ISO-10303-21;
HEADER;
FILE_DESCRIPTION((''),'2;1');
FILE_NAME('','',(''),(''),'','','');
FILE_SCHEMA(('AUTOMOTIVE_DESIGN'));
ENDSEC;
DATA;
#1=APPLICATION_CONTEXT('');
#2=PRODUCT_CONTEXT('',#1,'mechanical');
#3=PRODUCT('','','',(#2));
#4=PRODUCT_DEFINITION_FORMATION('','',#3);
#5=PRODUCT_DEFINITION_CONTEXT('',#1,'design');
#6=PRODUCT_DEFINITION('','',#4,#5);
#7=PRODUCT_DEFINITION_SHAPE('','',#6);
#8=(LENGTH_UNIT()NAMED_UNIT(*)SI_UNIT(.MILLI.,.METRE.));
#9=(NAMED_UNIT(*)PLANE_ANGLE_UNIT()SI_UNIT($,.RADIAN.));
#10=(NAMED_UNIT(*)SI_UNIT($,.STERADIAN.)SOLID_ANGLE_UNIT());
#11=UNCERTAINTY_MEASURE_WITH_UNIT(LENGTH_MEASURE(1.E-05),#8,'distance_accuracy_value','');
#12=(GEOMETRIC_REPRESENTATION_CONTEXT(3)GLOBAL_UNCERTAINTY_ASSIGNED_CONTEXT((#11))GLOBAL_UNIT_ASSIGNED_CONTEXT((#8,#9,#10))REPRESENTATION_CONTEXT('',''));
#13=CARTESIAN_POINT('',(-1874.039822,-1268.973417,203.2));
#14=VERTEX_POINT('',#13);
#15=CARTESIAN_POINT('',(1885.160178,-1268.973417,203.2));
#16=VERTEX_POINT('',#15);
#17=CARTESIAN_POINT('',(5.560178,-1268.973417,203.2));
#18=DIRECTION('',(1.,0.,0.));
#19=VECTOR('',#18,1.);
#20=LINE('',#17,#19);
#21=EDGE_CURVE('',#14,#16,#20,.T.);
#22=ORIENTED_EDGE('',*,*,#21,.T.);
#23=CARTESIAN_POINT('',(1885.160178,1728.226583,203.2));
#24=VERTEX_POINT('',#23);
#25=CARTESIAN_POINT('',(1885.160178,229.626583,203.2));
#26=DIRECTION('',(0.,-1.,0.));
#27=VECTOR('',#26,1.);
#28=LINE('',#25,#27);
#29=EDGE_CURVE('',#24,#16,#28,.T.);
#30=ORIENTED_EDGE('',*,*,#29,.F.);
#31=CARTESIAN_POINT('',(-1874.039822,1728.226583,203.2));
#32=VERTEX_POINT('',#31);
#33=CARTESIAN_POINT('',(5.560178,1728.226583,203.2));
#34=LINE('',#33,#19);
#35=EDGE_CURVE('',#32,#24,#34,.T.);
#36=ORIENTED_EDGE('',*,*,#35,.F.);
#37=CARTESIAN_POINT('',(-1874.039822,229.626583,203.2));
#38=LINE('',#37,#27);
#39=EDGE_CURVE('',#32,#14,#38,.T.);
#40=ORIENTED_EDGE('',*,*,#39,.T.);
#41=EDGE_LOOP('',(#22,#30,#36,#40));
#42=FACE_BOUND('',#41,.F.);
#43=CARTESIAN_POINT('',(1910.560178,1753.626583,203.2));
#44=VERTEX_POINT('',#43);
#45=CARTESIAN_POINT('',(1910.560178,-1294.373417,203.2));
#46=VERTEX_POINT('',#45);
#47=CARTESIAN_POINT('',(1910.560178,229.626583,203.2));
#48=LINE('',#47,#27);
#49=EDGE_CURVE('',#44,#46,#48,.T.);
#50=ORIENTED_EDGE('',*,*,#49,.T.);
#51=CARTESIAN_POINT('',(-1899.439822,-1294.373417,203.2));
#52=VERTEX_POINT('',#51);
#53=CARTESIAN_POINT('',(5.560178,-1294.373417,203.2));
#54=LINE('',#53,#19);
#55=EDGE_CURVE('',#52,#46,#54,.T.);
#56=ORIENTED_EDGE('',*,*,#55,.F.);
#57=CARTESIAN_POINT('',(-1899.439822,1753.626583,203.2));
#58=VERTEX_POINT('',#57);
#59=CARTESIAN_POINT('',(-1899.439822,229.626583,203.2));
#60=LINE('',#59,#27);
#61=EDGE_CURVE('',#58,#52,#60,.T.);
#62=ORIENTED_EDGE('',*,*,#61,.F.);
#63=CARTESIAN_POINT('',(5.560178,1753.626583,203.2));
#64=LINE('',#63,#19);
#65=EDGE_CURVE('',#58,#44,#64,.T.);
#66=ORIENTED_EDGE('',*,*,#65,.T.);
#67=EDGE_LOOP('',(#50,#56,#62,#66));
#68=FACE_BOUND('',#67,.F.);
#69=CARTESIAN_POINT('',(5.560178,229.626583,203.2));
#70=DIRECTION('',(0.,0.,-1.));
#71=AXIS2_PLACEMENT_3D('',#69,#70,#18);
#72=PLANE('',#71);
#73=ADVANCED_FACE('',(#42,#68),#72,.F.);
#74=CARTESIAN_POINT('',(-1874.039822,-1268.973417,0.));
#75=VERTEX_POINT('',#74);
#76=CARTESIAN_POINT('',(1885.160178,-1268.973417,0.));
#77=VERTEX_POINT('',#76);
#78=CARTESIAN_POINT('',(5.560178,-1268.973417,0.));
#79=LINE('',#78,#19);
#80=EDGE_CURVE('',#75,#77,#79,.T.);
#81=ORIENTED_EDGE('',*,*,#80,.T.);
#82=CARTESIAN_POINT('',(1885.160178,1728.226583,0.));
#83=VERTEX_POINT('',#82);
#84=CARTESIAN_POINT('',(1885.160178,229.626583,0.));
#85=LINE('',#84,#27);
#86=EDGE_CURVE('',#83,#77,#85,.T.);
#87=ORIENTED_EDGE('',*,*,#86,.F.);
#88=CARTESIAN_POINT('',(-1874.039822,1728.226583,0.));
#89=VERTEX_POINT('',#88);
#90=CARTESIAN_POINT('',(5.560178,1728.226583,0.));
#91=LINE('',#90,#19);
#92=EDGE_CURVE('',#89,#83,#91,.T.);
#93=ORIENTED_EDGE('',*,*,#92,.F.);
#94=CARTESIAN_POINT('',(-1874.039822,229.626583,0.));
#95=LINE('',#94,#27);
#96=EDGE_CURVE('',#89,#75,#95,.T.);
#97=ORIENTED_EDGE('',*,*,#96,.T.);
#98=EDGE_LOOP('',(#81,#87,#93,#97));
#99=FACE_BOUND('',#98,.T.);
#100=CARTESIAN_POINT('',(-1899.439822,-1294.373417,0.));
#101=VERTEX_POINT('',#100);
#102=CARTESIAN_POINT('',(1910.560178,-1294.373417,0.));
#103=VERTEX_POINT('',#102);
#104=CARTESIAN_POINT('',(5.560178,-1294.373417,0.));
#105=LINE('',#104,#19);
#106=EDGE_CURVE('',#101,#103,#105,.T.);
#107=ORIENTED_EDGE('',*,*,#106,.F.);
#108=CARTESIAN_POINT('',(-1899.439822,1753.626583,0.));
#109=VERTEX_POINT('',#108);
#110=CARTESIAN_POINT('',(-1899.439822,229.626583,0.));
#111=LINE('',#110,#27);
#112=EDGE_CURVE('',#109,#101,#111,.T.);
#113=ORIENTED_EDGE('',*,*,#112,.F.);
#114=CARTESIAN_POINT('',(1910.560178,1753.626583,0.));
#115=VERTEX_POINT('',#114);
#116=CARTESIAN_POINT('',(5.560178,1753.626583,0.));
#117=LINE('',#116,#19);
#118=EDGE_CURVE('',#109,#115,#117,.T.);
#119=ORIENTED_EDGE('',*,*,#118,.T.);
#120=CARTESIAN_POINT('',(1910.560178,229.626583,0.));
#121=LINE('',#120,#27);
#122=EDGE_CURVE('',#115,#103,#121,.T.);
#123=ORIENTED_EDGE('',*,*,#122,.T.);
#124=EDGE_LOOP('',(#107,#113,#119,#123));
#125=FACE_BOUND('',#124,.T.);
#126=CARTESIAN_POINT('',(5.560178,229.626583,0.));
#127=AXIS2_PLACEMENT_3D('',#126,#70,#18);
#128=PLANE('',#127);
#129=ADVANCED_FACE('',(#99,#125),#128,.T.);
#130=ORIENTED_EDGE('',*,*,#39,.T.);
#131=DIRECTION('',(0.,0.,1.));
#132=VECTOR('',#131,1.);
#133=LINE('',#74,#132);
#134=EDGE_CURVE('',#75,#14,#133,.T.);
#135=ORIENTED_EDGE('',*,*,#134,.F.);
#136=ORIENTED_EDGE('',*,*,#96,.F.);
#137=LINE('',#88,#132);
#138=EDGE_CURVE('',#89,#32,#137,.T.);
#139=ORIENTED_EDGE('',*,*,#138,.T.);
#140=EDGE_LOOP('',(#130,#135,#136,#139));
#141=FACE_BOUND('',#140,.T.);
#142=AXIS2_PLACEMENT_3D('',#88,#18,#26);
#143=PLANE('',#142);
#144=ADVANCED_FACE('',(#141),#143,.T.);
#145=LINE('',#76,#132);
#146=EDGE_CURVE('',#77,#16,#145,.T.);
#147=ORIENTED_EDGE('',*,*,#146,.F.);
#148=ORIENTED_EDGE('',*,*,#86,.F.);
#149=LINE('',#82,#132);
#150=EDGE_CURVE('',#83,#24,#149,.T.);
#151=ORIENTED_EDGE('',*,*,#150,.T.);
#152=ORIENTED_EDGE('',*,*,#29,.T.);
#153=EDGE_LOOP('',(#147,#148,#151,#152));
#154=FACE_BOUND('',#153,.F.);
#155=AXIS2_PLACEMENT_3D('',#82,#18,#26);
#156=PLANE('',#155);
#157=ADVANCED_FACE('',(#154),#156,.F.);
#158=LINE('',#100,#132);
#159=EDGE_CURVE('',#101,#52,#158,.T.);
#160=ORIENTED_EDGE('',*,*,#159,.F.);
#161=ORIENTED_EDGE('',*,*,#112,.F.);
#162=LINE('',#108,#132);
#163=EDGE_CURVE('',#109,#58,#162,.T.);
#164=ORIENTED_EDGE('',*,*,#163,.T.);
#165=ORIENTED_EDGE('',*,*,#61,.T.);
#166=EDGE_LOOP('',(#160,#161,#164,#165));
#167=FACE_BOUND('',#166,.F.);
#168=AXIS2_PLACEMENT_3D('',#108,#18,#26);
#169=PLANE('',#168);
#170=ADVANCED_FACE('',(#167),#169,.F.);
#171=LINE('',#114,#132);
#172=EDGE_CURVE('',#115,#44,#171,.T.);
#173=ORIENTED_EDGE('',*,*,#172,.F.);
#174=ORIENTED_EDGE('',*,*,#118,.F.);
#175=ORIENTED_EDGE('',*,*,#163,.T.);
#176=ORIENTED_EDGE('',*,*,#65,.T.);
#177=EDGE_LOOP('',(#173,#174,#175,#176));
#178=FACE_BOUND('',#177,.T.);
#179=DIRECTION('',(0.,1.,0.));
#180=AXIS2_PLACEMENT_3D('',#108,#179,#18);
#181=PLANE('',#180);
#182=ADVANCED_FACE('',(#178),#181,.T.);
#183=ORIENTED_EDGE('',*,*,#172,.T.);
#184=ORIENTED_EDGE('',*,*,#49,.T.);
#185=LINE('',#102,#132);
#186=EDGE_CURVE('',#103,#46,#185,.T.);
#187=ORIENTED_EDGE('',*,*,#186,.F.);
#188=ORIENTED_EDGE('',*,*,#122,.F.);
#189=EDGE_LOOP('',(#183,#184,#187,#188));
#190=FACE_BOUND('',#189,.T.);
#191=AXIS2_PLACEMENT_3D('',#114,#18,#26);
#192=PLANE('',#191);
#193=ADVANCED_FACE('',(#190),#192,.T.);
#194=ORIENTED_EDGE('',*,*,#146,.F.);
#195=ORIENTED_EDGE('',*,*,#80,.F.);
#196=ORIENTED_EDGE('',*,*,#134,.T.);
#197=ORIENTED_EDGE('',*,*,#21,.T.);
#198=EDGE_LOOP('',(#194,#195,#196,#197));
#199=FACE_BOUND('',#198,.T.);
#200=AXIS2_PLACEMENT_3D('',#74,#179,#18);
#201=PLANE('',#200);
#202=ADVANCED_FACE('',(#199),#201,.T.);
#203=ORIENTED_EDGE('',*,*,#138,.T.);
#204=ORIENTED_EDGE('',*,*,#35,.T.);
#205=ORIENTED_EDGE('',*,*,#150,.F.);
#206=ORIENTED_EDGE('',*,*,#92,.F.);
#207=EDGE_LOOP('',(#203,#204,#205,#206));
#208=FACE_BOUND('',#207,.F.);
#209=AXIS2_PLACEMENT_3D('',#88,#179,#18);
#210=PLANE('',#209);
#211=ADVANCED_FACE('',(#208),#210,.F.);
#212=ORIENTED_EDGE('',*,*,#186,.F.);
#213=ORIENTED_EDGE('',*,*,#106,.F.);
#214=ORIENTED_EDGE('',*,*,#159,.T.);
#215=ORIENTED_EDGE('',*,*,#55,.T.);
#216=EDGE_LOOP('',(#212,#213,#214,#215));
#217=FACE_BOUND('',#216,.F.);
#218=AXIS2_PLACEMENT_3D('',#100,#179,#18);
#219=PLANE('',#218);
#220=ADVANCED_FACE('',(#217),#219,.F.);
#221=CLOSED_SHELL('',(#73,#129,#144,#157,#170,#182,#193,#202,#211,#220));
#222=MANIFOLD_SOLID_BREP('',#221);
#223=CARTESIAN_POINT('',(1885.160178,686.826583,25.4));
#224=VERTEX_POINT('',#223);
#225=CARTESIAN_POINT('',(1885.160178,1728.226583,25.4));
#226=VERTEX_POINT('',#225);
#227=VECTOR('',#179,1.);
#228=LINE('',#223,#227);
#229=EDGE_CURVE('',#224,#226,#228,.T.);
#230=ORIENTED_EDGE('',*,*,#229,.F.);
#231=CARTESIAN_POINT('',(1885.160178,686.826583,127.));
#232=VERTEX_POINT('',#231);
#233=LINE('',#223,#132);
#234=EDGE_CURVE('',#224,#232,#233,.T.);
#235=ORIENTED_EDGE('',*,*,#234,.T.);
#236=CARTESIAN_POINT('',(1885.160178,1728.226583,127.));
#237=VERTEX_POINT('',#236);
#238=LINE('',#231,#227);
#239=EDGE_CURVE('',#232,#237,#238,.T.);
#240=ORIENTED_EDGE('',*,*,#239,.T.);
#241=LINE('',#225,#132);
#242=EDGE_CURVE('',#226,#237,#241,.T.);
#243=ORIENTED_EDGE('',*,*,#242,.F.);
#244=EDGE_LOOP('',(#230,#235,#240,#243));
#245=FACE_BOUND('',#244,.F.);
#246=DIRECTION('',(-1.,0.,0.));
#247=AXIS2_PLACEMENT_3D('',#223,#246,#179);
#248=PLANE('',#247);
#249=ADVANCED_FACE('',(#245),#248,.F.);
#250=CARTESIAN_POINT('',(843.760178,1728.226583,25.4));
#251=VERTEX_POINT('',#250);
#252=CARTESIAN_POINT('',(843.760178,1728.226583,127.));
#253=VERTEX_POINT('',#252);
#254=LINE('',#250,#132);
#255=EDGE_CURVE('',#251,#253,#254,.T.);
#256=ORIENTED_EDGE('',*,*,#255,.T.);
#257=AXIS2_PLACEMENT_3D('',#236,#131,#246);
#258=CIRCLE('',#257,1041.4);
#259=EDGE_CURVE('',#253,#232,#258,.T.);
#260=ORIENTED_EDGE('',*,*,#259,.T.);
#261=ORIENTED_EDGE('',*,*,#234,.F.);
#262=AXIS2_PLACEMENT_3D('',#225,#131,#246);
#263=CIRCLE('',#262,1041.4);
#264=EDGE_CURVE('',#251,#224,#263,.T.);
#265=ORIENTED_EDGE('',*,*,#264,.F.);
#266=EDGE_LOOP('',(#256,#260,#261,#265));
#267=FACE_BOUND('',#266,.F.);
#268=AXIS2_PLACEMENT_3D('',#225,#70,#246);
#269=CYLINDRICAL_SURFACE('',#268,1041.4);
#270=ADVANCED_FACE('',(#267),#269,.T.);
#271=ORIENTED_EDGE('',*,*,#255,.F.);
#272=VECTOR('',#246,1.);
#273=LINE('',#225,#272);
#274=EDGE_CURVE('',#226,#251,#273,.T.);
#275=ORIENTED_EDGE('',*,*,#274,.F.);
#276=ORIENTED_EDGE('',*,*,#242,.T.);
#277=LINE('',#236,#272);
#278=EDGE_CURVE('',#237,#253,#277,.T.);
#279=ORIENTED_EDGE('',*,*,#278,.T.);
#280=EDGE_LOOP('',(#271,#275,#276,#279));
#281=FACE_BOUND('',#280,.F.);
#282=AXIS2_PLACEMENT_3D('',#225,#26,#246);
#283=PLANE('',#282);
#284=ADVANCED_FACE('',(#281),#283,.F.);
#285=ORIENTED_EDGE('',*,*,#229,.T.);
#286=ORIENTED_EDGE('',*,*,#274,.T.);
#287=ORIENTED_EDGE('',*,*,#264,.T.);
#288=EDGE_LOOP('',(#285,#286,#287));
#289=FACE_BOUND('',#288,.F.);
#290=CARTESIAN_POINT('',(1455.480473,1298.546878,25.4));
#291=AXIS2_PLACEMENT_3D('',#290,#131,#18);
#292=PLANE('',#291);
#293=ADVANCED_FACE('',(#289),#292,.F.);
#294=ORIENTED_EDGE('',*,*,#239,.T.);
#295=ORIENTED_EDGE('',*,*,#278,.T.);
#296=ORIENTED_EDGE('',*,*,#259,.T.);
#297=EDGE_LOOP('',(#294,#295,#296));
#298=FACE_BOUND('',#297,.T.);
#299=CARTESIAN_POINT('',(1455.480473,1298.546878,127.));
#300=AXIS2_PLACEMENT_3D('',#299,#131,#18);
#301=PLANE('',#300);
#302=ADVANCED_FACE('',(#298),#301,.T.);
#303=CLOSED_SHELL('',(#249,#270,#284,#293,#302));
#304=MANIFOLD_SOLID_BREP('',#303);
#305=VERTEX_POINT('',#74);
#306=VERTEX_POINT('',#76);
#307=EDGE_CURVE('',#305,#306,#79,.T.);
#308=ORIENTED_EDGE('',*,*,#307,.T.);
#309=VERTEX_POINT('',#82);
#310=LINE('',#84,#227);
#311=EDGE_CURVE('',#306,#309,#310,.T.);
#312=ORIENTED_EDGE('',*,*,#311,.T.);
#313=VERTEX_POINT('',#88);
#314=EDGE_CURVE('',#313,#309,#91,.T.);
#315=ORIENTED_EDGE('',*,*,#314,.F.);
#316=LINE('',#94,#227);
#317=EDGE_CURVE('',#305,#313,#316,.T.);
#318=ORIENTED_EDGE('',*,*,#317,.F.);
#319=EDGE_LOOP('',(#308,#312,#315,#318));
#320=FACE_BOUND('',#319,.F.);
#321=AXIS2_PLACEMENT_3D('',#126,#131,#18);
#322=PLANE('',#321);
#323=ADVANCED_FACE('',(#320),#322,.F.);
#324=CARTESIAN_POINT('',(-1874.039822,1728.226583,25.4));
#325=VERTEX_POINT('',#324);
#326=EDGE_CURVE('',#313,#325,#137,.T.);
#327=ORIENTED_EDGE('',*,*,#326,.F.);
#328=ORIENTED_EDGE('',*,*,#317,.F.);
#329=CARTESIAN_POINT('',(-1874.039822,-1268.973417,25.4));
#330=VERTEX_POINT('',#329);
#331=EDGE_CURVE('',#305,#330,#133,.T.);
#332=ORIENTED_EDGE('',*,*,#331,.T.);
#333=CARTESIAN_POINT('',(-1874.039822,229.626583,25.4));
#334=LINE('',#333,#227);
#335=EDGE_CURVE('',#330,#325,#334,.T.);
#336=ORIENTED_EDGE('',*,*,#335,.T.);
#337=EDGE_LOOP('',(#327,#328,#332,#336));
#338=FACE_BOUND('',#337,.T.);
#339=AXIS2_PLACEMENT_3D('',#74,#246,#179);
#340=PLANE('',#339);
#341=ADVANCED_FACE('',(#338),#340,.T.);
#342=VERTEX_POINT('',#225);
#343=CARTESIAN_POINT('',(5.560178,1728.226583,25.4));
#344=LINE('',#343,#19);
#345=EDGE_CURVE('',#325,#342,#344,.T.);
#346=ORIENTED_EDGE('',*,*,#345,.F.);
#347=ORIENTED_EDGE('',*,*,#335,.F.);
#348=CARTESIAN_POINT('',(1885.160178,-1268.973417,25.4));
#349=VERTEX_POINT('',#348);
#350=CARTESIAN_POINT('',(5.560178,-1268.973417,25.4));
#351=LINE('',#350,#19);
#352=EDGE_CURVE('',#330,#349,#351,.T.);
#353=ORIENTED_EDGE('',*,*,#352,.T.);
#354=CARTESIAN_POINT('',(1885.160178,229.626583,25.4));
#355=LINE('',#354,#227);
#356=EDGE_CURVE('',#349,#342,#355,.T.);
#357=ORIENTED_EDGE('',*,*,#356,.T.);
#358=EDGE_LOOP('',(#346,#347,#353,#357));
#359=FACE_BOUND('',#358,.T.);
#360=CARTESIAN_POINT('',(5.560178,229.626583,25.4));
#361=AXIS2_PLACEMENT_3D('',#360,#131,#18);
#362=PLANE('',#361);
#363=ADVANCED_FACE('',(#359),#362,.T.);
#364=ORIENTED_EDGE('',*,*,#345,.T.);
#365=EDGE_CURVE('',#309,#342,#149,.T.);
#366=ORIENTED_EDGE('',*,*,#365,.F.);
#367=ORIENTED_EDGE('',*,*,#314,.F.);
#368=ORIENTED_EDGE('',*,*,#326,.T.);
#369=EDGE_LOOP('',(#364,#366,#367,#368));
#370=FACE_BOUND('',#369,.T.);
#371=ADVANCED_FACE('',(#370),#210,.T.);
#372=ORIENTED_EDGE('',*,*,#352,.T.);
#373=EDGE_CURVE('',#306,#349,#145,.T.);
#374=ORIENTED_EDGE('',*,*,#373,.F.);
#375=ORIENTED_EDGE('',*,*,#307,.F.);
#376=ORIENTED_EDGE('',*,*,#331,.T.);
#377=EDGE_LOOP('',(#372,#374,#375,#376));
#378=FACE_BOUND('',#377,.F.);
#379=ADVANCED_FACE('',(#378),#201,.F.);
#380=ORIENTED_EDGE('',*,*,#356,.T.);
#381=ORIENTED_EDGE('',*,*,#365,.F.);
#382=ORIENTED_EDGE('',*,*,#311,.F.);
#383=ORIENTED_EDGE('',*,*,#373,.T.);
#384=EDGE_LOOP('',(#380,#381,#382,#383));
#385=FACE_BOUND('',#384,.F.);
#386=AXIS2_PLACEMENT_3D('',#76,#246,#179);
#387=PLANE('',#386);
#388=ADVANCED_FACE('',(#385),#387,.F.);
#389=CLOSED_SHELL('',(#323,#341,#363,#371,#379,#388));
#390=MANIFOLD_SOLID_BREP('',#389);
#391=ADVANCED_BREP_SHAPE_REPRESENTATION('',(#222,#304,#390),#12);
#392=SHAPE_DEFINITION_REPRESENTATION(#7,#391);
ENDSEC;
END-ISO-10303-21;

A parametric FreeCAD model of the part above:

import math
import FreeCAD as App
import Part
import Sketcher
from FreeCAD import Vector
Q = App.Units.Quantity

doc = App.newDocument("Part")
params = doc.addObject("Spreadsheet::Sheet", "Params")
for row, (alias, value) in enumerate([
    ("sketch1_width", "148 in"),
    ("sketch1_height", "118 in"),
    ("pad1_length", "1 in"),
    ("sketch2_width", "150 in"),
    ("sketch2_width2", "148 in"),
    ("sketch2_height", "120 in"),
    ("sketch2_height2", "118 in"),
    ("pad2_length", "8 in"),
    ("sketch3_radius", "41 in"),
    ("pad3_length", "4 in"),
], start=1):
    params.set(f"A{row}", alias)
    params.set(f"B{row}", "=" + value)
    params.setAlias(f"B{row}", alias)

body = doc.addObject("PartDesign::Body", "Body")

# Sketch on XY plane
sketch1 = body.newObject("Sketcher::SketchObject", "Sketch")
sketch1.AttachmentSupport = (doc.getObject("XY_Plane"), [""])
sketch1.MapMode = "FlatFace"
sketch1.addGeometry([
    Part.LineSegment(Vector(-1874.039822, 1728.226583, 0), Vector(-1874.039822, -1268.973417, 0)),
    Part.LineSegment(Vector(-1874.039822, -1268.973417, 0), Vector(1885.160178, -1268.973417, 0)),
    Part.LineSegment(Vector(1885.160178, -1268.973417, 0), Vector(1885.160178, 1728.226583, 0)),
    Part.LineSegment(Vector(1885.160178, 1728.226583, 0), Vector(-1874.039822, 1728.226583, 0)),
], False)
sketch1.addConstraint([
    Sketcher.Constraint("Coincident", 0, 2, 1, 1),
    Sketcher.Constraint("Coincident", 1, 2, 2, 1),
    Sketcher.Constraint("Coincident", 2, 2, 3, 1),
    Sketcher.Constraint("Coincident", 3, 2, 0, 1),
    Sketcher.Constraint("Vertical", 0),
    Sketcher.Constraint("Horizontal", 1),
    Sketcher.Constraint("Vertical", 2),
    Sketcher.Constraint("Horizontal", 3),
    Sketcher.Constraint("DistanceX", 1, 1, 1, 2, Q("148 in")),
    Sketcher.Constraint("DistanceY", 0, 2, 0, 1, Q("118 in")),
    Sketcher.Constraint("DistanceX", 0, 2, -1, 1, Q("1874.039822 mm")),
    Sketcher.Constraint("DistanceY", 0, 2, -1, 1, Q("1268.973417 mm")),
])
sketch1.setExpression("Constraints[8]", "Params.sketch1_width")
sketch1.setExpression("Constraints[9]", "Params.sketch1_height")
pad1 = body.newObject("PartDesign::Pad", "Pad")
pad1.Profile = sketch1
pad1.setExpression("Length", "Params.pad1_length")
body2 = doc.addObject("PartDesign::Body", "Body001")

# Sketch on XY plane
sketch2 = body2.newObject("Sketcher::SketchObject", "Sketch001")
sketch2.AttachmentSupport = (doc.getObject("XY_Plane001"), [""])
sketch2.MapMode = "FlatFace"
sketch2.addGeometry([
    Part.LineSegment(Vector(-1899.439822, -1294.373417, 0), Vector(-1899.439822, 1753.626583, 0)),  # 0
    Part.LineSegment(Vector(-1899.439822, 1753.626583, 0), Vector(1910.560178, 1753.626583, 0)),  # 1
    Part.LineSegment(Vector(1910.560178, 1753.626583, 0), Vector(1910.560178, -1294.373417, 0)),  # 2
    Part.LineSegment(Vector(1910.560178, -1294.373417, 0), Vector(-1899.439822, -1294.373417, 0)),  # 3
    Part.LineSegment(Vector(1885.160178, 1728.226583, 0), Vector(-1874.039822, 1728.226583, 0)),  # 4
    Part.LineSegment(Vector(-1874.039822, 1728.226583, 0), Vector(-1874.039822, -1268.973417, 0)),  # 5
    Part.LineSegment(Vector(-1874.039822, -1268.973417, 0), Vector(1885.160178, -1268.973417, 0)),  # 6
    Part.LineSegment(Vector(1885.160178, -1268.973417, 0), Vector(1885.160178, 1728.226583, 0)),  # 7
], False)
sketch2.addConstraint([
    Sketcher.Constraint("Coincident", 0, 2, 1, 1),
    Sketcher.Constraint("Coincident", 1, 2, 2, 1),
    Sketcher.Constraint("Coincident", 2, 2, 3, 1),
    Sketcher.Constraint("Coincident", 3, 2, 0, 1),
    Sketcher.Constraint("Coincident", 4, 2, 5, 1),
    Sketcher.Constraint("Coincident", 5, 2, 6, 1),
    Sketcher.Constraint("Coincident", 6, 2, 7, 1),
    Sketcher.Constraint("Coincident", 7, 2, 4, 1),
    Sketcher.Constraint("Vertical", 0),
    Sketcher.Constraint("Horizontal", 1),
    Sketcher.Constraint("Vertical", 2),
    Sketcher.Constraint("Horizontal", 3),
    Sketcher.Constraint("Horizontal", 4),
    Sketcher.Constraint("Vertical", 5),
    Sketcher.Constraint("Horizontal", 6),
    Sketcher.Constraint("Vertical", 7),
    Sketcher.Constraint("DistanceX", 1, 1, 1, 2, Q("150 in")),
    Sketcher.Constraint("DistanceX", 4, 2, 4, 1, Q("148 in")),
    Sketcher.Constraint("DistanceY", 0, 1, 0, 2, Q("120 in")),
    Sketcher.Constraint("DistanceY", 5, 2, 5, 1, Q("118 in")),
    Sketcher.Constraint("DistanceX", 0, 2, 4, 2, Q("1 in")),
    Sketcher.Constraint("DistanceY", 4, 2, 0, 2, Q("1 in")),
    Sketcher.Constraint("DistanceX", 0, 2, -1, 1, Q("1899.439822 mm")),
    Sketcher.Constraint("DistanceY", -1, 1, 0, 2, Q("1753.626583 mm")),
])
sketch2.setExpression("Constraints[16]", "Params.sketch2_width")
sketch2.setExpression("Constraints[17]", "Params.sketch2_width2")
sketch2.setExpression("Constraints[18]", "Params.sketch2_height")
sketch2.setExpression("Constraints[19]", "Params.sketch2_height2")
pad2 = body2.newObject("PartDesign::Pad", "Pad001")
pad2.Profile = sketch2
pad2.setExpression("Length", "Params.pad2_length")
body3 = doc.addObject("PartDesign::Body", "Body002")

# Sketch on XY plane
sketch3 = body3.newObject("Sketcher::SketchObject", "Sketch002")
sketch3.AttachmentSupport = (doc.getObject("XY_Plane002"), [""])
sketch3.MapMode = "FlatFace"
sketch3.AttachmentOffset = App.Placement(Vector(0, 0, 1 * 25.4), App.Rotation())
sketch3.addGeometry([
    Part.LineSegment(Vector(1885.160178, 1728.226583, 0), Vector(843.760178, 1728.226583, 0)),
    Part.ArcOfCircle(Part.Circle(Vector(1885.160178, 1728.226583, 0), Vector(0, 0, 1), 1041.4), math.radians(180), math.radians(270)),
    Part.LineSegment(Vector(1885.160178, 686.826583, 0), Vector(1885.160178, 1728.226583, 0)),
], False)
sketch3.addConstraint([
    Sketcher.Constraint("Coincident", 0, 2, 1, 1),
    Sketcher.Constraint("Coincident", 1, 2, 2, 1),
    Sketcher.Constraint("Coincident", 2, 2, 0, 1),
    Sketcher.Constraint("Horizontal", 0),
    Sketcher.Constraint("Vertical", 2),
    Sketcher.Constraint("Coincident", 2, 2, 1, 3),
    Sketcher.Constraint("Radius", 1, Q("41 in")),
    Sketcher.Constraint("DistanceX", -1, 1, 1, 3, Q("1885.160178 mm")),
    Sketcher.Constraint("DistanceY", -1, 1, 1, 3, Q("1728.226583 mm")),
])
sketch3.setExpression("Constraints[6]", "Params.sketch3_radius")
pad3 = body3.newObject("PartDesign::Pad", "Pad002")
pad3.Profile = sketch3
pad3.setExpression("Length", "Params.pad3_length")

doc.recompute()
